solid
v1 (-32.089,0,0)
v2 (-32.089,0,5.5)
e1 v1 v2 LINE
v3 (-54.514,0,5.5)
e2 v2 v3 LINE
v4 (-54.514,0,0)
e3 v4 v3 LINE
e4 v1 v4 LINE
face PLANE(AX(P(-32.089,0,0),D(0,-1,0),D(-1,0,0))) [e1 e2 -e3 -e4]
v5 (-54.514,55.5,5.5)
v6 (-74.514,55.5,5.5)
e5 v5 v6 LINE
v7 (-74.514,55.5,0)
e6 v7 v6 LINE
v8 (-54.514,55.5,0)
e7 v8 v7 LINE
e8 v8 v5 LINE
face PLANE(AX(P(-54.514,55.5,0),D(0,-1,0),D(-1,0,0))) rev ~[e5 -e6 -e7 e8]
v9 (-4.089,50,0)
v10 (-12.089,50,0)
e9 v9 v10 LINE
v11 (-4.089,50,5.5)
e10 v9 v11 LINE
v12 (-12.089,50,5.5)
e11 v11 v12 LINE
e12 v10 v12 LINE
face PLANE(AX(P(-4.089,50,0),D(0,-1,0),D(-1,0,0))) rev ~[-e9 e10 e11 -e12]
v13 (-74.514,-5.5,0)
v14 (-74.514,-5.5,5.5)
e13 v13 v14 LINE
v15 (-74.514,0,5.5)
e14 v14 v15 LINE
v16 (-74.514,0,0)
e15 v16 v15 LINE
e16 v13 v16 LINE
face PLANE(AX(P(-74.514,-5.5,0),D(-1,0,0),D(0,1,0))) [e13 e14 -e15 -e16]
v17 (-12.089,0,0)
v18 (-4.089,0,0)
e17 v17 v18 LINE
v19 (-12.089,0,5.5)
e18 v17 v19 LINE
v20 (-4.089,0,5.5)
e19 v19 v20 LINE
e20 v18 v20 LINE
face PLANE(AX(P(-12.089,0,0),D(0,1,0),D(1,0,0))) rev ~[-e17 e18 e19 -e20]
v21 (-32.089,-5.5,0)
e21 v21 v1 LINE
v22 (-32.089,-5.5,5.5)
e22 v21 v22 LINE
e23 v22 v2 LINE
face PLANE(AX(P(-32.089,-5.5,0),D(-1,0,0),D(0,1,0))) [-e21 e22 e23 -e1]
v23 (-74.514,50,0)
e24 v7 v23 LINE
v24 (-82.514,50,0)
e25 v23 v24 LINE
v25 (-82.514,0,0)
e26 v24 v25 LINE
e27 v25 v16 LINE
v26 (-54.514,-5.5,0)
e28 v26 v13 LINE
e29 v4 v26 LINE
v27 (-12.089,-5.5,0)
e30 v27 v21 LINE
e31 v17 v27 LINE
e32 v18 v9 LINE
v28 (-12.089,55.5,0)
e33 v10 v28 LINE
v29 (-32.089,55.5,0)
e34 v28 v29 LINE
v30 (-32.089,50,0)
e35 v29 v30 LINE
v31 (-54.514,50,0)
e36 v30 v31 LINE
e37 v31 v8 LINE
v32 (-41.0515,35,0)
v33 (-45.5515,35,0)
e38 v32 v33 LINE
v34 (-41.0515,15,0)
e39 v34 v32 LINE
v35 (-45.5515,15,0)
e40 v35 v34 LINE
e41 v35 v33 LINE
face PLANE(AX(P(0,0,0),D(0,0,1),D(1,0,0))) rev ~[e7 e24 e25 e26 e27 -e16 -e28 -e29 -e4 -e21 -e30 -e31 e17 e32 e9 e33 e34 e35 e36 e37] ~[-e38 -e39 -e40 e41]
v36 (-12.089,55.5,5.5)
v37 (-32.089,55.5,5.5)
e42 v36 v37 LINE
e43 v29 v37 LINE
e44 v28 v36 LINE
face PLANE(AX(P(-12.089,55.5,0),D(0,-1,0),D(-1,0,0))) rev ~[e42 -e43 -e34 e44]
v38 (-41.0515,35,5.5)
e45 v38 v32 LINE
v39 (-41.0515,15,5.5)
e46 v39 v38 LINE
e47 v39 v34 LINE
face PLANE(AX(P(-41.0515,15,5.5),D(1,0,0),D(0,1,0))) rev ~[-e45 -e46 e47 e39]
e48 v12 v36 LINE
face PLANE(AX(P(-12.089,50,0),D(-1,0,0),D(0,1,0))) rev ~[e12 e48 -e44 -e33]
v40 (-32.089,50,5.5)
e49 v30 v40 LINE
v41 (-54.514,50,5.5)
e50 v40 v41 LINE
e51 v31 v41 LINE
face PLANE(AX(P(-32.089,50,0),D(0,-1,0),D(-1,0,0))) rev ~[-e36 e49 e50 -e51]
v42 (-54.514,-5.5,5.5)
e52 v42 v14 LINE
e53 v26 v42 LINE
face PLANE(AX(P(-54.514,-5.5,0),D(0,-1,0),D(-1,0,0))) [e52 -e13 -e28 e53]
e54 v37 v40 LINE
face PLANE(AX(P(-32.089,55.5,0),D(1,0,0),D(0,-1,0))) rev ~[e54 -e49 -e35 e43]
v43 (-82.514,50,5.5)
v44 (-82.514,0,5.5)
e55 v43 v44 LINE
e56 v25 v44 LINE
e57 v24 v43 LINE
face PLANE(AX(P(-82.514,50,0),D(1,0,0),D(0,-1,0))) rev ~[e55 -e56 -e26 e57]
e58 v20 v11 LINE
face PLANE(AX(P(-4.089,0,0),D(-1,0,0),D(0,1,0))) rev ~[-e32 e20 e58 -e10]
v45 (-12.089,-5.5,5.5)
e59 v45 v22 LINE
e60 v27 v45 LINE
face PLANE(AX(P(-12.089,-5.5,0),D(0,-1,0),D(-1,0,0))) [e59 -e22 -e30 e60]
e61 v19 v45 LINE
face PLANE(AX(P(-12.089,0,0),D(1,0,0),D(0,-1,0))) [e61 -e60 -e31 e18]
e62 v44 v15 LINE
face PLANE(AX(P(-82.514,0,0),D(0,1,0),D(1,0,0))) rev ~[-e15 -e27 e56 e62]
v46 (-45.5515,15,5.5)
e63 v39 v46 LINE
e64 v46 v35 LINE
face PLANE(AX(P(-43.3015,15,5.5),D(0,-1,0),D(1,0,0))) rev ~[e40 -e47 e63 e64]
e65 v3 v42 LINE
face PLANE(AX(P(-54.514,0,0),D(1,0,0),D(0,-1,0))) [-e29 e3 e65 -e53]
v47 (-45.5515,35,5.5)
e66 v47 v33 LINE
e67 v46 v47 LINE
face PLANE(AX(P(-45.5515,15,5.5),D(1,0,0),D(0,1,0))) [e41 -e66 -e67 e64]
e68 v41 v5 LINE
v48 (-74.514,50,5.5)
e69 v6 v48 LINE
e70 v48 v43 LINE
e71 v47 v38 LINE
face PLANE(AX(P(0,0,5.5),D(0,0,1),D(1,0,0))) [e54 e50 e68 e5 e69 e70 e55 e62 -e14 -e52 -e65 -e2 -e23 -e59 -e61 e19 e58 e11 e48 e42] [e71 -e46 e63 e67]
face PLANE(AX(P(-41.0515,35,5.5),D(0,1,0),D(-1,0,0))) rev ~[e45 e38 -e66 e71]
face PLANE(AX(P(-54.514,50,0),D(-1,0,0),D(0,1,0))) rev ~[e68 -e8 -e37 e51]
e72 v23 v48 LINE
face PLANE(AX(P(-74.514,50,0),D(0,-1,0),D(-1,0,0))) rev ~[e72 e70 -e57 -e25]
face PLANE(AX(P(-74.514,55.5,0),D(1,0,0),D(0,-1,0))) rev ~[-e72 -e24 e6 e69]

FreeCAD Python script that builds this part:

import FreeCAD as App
import Part
import Sketcher
from FreeCAD import Vector
Q = App.Units.Quantity


def add_polygon(sketch, points):
    """Adds a closed chain of lines whose ends are joined by coincident constraints."""
    first, n = sketch.GeometryCount, len(points)
    for a, b in zip(points, points[1:] + points[:1]):
        sketch.addGeometry(Part.LineSegment(App.Vector(*a, 0), App.Vector(*b, 0)), False)
    for i in range(n):
        sketch.addConstraint(Sketcher.Constraint("Coincident", first + i, 2, first + (i + 1) % n, 1))

doc = App.newDocument("Part")
body = doc.addObject("PartDesign::Body", "Body")

# Sketch on XY plane
sketch1 = body.newObject("Sketcher::SketchObject", "Sketch")
sketch1.AttachmentSupport = (doc.getObject("XY_Plane"), [""])
sketch1.MapMode = "FlatFace"
add_polygon(sketch1, [(-12, -6), (-12, 0), (-4, 0), (-4, 50), (-12, 50), (-12, 56), (-32, 56), (-32, 50), (-55, 50), (-55, 56), (-75, 56), (-75, 50), (-83, 50), (-83, 0), (-75, 0), (-75, -6), (-55, -6), (-55, 0), (-32, 0), (-32, -6)])  # lines 0-19
sketch1.addConstraint(Sketcher.Constraint("Vertical", 0))
sketch1.addConstraint(Sketcher.Constraint("Horizontal", 1))
sketch1.addConstraint(Sketcher.Constraint("Vertical", 2))
sketch1.addConstraint(Sketcher.Constraint("Horizontal", 3))
sketch1.addConstraint(Sketcher.Constraint("Vertical", 4))
sketch1.addConstraint(Sketcher.Constraint("Horizontal", 5))
sketch1.addConstraint(Sketcher.Constraint("Vertical", 6))
sketch1.addConstraint(Sketcher.Constraint("Horizontal", 7))
sketch1.addConstraint(Sketcher.Constraint("Vertical", 8))
sketch1.addConstraint(Sketcher.Constraint("Horizontal", 9))
sketch1.addConstraint(Sketcher.Constraint("Vertical", 10))
sketch1.addConstraint(Sketcher.Constraint("Horizontal", 11))
sketch1.addConstraint(Sketcher.Constraint("Vertical", 12))
sketch1.addConstraint(Sketcher.Constraint("Horizontal", 13))
sketch1.addConstraint(Sketcher.Constraint("Vertical", 14))
sketch1.addConstraint(Sketcher.Constraint("Horizontal", 15))
sketch1.addConstraint(Sketcher.Constraint("Vertical", 16))
sketch1.addConstraint(Sketcher.Constraint("Horizontal", 17))
sketch1.addConstraint(Sketcher.Constraint("Vertical", 18))
sketch1.addConstraint(Sketcher.Constraint("Horizontal", 19))
sketch1.addConstraint(Sketcher.Constraint("PointOnObject", 0, 2, -1))
sketch1.addConstraint(Sketcher.Constraint("PointOnObject", 12, 2, -1))
sketch1.addConstraint(Sketcher.Constraint("PointOnObject", 16, 2, -1))
sketch1.addConstraint(Sketcher.Constraint("Horizontal", 3, 2, 6, 2))
sketch1.addConstraint(Sketcher.Constraint("Horizontal", 5, 2, 8, 2))
sketch1.addConstraint(Sketcher.Constraint("Horizontal", 7, 2, 10, 2))
sketch1.addConstraint(Sketcher.Constraint("Horizontal", 15, 2, 18, 2))
sketch1.addConstraint(Sketcher.Constraint("Vertical", 0, 2, 3, 2))
sketch1.addConstraint(Sketcher.Constraint("Vertical", 10, 2, 13, 2))
sketch1.addConstraint(Sketcher.Constraint("Vertical", 8, 2, 15, 2))
sketch1.addConstraint(Sketcher.Constraint("Vertical", 6, 2, 17, 2))
sketch1.addConstraint(Sketcher.Constraint("Equal", 5, 9))
sketch1.addConstraint(Sketcher.Constraint("Equal", 3, 11))
sketch1.addConstraint(Sketcher.Constraint("Equal", 0, 4))
sketch1.addConstraint(Sketcher.Constraint("DistanceX", 1, 1, 1, 2, Q("8 mm")))
sketch1.addConstraint(Sketcher.Constraint("DistanceX", 5, 2, 5, 1, Q("20 mm")))
sketch1.addConstraint(Sketcher.Constraint("DistanceY", 0, 1, 0, 2, Q("5.5 mm")))
sketch1.addConstraint(Sketcher.Constraint("DistanceY", 2, 1, 2, 2, Q("50 mm")))
sketch1.addConstraint(Sketcher.Constraint("DistanceX", 7, 2, 7, 1, Q("22.425 mm")))
sketch1.addConstraint(Sketcher.Constraint("DistanceX", 0, 2, -1, 1, Q("12.089 mm")))
pad1 = body.newObject("PartDesign::Pad", "Pad")
pad1.Profile = sketch1
pad1.Length = 5.5

# Sketch on XY plane
sketch2 = body.newObject("Sketcher::SketchObject", "Sketch001")
sketch2.AttachmentSupport = (doc.getObject("XY_Plane"), [""])
sketch2.MapMode = "FlatFace"
sketch2.AttachmentOffset = App.Placement(Vector(0, 0, 5.5), App.Rotation())
add_polygon(sketch2, [(-45.6, 15), (-41.1, 15), (-41.1, 35), (-45.6, 35)])  # lines 0-3
sketch2.addConstraint(Sketcher.Constraint("Horizontal", 0))
sketch2.addConstraint(Sketcher.Constraint("Vertical", 1))
sketch2.addConstraint(Sketcher.Constraint("Horizontal", 2))
sketch2.addConstraint(Sketcher.Constraint("Vertical", 3))
sketch2.addConstraint(Sketcher.Constraint("DistanceY", 1, 1, 1, 2, Q("20 mm")))
sketch2.addConstraint(Sketcher.Constraint("DistanceX", 0, 1, 0, 2, Q("4.5 mm")))
sketch2.addConstraint(Sketcher.Constraint("DistanceY", -1, 1, 0, 2, Q("15 mm")))
sketch2.addConstraint(Sketcher.Constraint("DistanceX", 0, 2, -1, 1, Q("41.0515 mm")))
pocket1 = body.newObject("PartDesign::Pocket", "Pocket")
pocket1.Profile = sketch2
pocket1.Length = 10

doc.recompute()
